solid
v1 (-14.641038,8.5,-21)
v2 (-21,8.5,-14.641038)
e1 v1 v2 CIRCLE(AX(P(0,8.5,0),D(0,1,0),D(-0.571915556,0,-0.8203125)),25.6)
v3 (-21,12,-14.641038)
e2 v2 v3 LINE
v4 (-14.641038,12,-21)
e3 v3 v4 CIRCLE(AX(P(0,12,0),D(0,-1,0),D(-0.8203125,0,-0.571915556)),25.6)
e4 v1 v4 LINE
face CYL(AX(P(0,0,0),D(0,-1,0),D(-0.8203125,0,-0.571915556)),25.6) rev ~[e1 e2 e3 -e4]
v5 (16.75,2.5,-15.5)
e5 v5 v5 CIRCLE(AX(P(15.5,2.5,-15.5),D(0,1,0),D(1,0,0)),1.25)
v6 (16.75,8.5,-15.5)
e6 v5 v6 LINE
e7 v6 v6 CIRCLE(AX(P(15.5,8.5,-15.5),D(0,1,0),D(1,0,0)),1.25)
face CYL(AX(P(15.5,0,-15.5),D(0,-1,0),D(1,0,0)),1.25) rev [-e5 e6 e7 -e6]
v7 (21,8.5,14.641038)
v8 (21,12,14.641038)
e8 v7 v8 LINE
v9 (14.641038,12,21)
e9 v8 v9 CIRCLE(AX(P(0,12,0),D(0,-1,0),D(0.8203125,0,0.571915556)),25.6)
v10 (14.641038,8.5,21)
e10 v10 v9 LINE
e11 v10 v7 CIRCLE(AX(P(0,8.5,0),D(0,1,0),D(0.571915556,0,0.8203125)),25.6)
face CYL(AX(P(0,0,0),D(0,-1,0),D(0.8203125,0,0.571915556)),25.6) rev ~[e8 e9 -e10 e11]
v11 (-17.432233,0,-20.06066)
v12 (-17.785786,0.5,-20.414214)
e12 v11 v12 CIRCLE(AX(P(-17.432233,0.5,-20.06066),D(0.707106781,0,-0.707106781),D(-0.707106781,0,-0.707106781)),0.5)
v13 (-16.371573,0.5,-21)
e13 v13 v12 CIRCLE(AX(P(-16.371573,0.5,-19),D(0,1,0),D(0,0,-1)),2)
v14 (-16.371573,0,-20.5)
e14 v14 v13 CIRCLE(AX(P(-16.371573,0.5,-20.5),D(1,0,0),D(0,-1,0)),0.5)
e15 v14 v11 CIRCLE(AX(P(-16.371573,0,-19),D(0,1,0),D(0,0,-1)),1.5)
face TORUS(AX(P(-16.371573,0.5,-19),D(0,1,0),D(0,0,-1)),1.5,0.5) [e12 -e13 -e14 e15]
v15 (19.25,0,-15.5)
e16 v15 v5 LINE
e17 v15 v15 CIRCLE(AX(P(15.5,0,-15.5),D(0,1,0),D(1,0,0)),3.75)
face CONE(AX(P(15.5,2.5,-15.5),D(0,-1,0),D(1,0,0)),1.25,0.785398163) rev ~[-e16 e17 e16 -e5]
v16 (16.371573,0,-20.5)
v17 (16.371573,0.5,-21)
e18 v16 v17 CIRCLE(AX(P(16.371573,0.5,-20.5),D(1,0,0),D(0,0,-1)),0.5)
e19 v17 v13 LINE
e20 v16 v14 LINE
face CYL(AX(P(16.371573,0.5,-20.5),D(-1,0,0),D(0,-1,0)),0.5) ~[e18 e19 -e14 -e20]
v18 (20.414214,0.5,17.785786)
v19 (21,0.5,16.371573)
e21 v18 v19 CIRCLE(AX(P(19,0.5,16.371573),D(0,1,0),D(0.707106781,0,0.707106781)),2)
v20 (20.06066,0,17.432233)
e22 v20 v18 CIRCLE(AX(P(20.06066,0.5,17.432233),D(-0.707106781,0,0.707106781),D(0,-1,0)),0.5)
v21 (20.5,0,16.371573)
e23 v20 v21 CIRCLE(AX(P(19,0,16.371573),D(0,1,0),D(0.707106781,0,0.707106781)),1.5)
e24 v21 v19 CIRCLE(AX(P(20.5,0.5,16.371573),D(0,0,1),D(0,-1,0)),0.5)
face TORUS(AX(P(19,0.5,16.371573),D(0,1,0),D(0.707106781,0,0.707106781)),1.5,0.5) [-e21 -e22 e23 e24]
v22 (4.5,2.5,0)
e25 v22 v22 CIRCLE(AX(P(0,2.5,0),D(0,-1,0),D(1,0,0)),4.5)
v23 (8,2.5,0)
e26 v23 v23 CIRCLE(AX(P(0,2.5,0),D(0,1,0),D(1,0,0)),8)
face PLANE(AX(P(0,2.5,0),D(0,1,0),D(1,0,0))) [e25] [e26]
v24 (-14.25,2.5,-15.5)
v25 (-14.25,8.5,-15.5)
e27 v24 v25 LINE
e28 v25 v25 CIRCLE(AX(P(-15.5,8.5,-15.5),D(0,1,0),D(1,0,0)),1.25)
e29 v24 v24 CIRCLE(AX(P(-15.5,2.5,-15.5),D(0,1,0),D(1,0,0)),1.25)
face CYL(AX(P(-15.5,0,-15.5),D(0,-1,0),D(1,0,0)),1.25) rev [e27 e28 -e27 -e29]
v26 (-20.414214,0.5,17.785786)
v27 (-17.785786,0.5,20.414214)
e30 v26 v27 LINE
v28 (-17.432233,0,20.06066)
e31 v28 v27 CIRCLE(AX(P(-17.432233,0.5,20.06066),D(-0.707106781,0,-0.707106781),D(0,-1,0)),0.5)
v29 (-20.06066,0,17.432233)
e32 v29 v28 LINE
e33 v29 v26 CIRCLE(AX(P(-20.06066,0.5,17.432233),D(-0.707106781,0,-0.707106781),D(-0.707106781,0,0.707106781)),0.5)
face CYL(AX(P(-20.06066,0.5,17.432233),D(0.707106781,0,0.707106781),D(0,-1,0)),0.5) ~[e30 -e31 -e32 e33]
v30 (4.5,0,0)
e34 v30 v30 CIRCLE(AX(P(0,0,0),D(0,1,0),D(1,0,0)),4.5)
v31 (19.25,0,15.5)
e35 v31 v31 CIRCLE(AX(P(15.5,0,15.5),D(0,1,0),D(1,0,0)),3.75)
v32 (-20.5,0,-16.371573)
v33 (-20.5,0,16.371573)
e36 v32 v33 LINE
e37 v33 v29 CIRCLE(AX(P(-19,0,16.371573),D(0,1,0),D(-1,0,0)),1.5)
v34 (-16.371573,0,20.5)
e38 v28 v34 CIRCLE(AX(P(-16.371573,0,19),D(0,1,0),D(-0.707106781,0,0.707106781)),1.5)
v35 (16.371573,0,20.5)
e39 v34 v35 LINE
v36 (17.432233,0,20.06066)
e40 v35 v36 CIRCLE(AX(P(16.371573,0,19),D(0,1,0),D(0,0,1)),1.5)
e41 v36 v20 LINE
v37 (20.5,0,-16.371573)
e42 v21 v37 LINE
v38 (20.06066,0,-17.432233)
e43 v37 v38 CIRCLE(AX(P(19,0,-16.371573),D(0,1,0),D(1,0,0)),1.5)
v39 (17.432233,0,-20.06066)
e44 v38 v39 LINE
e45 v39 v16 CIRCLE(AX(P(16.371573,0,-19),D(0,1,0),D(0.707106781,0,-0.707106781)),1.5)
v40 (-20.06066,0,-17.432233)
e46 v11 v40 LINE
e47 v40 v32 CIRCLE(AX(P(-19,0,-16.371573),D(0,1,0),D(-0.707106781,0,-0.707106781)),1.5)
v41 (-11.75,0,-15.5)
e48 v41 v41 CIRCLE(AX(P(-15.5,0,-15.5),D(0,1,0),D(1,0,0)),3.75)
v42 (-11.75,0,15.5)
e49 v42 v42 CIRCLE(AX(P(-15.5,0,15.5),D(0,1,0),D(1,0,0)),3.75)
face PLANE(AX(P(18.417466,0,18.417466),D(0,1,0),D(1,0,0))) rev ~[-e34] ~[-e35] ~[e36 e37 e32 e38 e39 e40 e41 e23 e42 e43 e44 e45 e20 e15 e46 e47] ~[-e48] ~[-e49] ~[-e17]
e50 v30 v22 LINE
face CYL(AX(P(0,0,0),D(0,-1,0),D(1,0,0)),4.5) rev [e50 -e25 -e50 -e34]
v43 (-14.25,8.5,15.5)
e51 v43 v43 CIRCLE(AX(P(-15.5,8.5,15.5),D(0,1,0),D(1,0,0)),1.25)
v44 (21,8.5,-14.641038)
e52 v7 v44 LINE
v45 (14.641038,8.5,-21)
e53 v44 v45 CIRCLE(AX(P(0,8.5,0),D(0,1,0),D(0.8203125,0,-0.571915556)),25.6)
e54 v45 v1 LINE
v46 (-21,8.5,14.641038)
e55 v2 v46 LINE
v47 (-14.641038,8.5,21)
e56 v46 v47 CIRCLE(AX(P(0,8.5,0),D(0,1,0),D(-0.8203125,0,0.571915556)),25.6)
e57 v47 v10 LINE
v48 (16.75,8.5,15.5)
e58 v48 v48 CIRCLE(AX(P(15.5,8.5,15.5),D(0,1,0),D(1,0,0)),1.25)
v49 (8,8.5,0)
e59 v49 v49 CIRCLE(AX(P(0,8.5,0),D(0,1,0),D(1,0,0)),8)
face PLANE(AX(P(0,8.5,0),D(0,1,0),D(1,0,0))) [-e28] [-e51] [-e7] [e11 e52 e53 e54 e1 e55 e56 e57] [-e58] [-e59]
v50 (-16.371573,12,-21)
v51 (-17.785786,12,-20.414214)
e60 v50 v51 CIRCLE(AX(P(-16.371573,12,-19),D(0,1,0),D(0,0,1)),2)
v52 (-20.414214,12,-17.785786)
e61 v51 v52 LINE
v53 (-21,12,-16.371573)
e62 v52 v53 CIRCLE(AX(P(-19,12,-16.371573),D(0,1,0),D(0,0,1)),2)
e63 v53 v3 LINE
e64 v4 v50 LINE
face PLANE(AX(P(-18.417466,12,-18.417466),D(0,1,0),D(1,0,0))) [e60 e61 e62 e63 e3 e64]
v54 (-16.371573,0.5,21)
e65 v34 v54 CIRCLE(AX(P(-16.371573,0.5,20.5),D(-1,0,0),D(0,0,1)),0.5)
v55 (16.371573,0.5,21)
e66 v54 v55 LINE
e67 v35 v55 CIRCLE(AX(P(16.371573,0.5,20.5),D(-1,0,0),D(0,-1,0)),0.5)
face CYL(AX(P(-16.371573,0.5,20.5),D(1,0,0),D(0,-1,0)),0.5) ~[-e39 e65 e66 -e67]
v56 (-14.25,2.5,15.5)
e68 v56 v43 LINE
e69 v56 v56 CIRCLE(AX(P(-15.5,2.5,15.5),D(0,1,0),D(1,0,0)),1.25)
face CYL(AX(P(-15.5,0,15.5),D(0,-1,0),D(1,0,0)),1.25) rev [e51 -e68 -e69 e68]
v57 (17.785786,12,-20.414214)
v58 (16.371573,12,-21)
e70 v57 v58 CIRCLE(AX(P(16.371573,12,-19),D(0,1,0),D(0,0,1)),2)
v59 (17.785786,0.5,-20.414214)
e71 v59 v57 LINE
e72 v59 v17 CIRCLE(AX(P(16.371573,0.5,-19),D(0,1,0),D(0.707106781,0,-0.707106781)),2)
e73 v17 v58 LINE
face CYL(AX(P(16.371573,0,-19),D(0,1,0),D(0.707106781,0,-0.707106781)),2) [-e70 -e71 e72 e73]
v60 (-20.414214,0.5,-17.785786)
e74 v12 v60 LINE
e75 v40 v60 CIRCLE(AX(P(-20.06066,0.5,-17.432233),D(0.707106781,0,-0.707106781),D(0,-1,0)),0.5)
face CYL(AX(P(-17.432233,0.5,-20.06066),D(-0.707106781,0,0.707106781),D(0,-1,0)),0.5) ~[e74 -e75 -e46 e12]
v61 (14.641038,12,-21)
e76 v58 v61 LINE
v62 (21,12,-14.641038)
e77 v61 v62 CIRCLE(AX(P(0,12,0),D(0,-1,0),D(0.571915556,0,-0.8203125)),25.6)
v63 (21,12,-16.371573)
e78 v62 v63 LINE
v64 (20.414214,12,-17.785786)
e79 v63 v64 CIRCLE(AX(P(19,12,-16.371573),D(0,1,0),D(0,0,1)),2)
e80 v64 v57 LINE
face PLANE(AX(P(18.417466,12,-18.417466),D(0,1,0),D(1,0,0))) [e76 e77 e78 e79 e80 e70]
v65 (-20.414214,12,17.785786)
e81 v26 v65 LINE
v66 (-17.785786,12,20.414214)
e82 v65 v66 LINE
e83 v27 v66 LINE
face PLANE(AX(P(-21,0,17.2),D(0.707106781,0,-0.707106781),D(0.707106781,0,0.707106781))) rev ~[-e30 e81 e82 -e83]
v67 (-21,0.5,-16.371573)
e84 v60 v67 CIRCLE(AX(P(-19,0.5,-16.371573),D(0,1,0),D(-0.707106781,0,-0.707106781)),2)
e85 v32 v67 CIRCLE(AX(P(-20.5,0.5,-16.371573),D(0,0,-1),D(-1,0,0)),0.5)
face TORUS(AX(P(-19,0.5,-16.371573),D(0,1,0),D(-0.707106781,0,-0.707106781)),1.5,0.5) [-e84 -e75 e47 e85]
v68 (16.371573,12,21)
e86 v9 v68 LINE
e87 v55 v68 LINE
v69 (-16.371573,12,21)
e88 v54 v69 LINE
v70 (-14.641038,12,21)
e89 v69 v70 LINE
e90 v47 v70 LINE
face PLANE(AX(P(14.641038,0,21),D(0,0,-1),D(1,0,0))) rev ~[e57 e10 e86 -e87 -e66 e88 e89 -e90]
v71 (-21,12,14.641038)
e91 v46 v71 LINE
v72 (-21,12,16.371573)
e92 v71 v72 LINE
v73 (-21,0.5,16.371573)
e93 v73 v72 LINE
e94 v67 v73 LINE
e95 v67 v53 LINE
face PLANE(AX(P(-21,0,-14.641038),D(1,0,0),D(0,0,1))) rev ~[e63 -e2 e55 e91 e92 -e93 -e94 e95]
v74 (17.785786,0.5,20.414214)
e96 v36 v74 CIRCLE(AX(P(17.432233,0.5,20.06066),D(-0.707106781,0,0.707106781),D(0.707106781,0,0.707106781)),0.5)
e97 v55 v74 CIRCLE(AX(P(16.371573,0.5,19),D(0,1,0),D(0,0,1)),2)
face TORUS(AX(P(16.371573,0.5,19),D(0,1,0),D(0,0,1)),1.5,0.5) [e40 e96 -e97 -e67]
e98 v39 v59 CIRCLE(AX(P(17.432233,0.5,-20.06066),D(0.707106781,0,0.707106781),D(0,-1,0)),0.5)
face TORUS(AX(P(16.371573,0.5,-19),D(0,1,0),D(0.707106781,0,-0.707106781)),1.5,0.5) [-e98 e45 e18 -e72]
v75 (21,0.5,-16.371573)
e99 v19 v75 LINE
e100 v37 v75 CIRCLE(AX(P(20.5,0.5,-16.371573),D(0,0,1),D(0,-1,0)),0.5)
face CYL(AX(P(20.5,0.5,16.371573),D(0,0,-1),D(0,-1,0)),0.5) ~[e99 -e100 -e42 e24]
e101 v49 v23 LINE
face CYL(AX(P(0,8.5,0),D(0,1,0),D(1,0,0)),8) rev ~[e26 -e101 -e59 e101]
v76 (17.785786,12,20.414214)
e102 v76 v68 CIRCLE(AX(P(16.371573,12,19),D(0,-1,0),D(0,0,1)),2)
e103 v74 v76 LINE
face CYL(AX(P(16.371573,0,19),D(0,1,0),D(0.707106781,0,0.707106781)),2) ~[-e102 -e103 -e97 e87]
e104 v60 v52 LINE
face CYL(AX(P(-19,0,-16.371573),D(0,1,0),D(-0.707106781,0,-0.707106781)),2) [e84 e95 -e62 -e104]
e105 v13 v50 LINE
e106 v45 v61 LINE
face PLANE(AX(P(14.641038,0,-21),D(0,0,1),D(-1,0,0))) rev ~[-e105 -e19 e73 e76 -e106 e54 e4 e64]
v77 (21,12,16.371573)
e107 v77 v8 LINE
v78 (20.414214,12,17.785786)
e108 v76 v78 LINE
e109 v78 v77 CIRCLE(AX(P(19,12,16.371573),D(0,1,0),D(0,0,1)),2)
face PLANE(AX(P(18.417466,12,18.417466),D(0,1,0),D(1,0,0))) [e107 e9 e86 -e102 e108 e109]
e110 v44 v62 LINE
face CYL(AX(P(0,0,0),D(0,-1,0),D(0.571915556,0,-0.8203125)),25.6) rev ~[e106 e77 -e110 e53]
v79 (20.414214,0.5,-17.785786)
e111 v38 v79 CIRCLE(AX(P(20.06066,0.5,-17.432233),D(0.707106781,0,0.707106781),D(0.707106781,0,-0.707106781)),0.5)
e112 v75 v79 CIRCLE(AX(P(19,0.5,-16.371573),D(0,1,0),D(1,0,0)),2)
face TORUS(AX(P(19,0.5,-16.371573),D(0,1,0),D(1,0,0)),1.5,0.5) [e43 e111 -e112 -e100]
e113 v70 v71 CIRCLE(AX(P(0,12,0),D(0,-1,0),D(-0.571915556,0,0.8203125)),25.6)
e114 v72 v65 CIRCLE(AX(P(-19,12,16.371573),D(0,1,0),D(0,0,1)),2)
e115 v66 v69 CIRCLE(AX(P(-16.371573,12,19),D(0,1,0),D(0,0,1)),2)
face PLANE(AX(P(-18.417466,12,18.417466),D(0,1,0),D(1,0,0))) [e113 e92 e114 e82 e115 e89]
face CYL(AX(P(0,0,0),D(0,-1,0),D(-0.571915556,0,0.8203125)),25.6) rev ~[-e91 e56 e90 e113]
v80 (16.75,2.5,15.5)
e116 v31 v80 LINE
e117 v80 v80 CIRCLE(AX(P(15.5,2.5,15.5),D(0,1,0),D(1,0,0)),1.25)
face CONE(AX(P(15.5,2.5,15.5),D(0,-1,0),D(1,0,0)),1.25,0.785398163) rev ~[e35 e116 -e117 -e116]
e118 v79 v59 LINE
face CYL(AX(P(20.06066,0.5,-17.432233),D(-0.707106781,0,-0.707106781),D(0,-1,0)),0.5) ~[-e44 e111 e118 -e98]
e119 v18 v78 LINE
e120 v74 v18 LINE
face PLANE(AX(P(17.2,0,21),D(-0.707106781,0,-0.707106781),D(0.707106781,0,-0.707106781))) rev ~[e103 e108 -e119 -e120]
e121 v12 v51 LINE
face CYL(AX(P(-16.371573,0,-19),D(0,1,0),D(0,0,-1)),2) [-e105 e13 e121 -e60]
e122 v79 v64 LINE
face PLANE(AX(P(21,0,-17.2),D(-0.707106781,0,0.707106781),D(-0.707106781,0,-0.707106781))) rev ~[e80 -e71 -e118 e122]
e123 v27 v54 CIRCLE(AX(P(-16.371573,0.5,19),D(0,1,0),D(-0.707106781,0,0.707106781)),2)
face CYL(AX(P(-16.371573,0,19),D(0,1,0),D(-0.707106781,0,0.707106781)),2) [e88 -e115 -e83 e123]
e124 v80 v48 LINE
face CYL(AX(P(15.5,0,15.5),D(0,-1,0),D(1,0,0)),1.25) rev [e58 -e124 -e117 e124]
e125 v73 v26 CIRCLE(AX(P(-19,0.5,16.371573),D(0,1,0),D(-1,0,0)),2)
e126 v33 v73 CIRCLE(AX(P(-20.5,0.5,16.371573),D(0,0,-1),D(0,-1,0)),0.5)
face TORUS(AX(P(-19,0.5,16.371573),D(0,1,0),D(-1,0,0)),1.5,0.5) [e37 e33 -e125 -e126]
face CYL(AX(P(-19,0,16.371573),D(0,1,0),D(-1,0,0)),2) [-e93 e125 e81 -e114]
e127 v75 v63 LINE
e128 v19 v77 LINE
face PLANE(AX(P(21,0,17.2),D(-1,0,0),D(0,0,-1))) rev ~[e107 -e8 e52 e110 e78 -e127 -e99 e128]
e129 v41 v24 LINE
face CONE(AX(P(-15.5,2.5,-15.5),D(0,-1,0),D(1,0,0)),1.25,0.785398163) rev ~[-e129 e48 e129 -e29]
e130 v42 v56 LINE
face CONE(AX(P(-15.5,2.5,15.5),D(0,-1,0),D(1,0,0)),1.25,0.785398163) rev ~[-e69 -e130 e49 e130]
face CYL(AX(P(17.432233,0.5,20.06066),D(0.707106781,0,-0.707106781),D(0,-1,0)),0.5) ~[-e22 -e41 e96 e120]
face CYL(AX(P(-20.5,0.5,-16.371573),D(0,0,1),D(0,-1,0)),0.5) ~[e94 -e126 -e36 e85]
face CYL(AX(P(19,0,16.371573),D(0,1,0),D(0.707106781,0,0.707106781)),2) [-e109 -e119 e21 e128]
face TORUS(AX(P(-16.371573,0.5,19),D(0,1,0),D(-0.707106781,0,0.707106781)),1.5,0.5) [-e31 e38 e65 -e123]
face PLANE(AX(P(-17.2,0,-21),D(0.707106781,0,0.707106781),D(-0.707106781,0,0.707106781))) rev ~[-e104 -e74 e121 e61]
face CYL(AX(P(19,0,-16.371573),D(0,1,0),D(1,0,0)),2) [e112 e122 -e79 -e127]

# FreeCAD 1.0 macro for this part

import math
import FreeCAD as App
import Part
import Sketcher
Q = App.Units.Quantity


def edges_at(feature, points):
    """Names of the edges that pass closest to the given points."""
    edges = feature.Shape.Edges
    near = lambda p: min(range(len(edges)), key=lambda i: edges[i].distToShape(Part.Vertex(*p))[0])
    return sorted({f"Edge{near(p) + 1}" for p in points})

doc = App.newDocument("Part")
body = doc.addObject("PartDesign::Body", "Body")

# Sketch on XZ plane
sketch1 = body.newObject("Sketcher::SketchObject", "Sketch")
sketch1.AttachmentSupport = (doc.getObject("XZ_Plane"), [""])
sketch1.MapMode = "FlatFace"
sketch1.addGeometry([
    Part.ArcOfCircle(Part.Circle(App.Vector(0, 0, 0), App.Vector(0, 0, 1), 25.6), math.radians(-145), math.radians(-125)),  # 0
    Part.LineSegment(App.Vector(-21, -14.6, 0), App.Vector(-21, 14.6, 0)),  # 1
    Part.ArcOfCircle(Part.Circle(App.Vector(0, 0, 0), App.Vector(0, 0, 1), 25.6), math.radians(125), math.radians(145)),  # 2
    Part.LineSegment(App.Vector(-14.6, 21, 0), App.Vector(14.6, 21, 0)),  # 3
    Part.ArcOfCircle(Part.Circle(App.Vector(0, 0, 0), App.Vector(0, 0, 1), 25.6), math.radians(35), math.radians(55)),  # 4
    Part.LineSegment(App.Vector(21, 14.6, 0), App.Vector(21, -14.6, 0)),  # 5
    Part.ArcOfCircle(Part.Circle(App.Vector(0, 0, 0), App.Vector(0, 0, 1), 25.6), math.radians(-55), math.radians(-35)),  # 6
    Part.LineSegment(App.Vector(14.6, -21, 0), App.Vector(-14.6, -21, 0)),  # 7
    Part.Circle(App.Vector(-15.5, 15.5, 0), App.Vector(0, 0, 1), 1.2),  # 8
    Part.Circle(App.Vector(15.5, 15.5, 0), App.Vector(0, 0, 1), 1.2),  # 9
    Part.Circle(App.Vector(-15.5, -15.5, 0), App.Vector(0, 0, 1), 1.2),  # 10
    Part.Circle(App.Vector(0, 0, 0), App.Vector(0, 0, 1), 4.5),  # 11
    Part.Circle(App.Vector(15.5, -15.5, 0), App.Vector(0, 0, 1), 1.2),  # 12
], False)
sketch1.addConstraint([
    Sketcher.Constraint("Coincident", 0, 1, 1, 1),
    Sketcher.Constraint("Coincident", 1, 2, 2, 2),
    Sketcher.Constraint("Coincident", 2, 1, 3, 1),
    Sketcher.Constraint("Coincident", 3, 2, 4, 2),
    Sketcher.Constraint("Coincident", 4, 1, 5, 1),
    Sketcher.Constraint("Coincident", 5, 2, 6, 2),
    Sketcher.Constraint("Coincident", 6, 1, 7, 1),
    Sketcher.Constraint("Coincident", 7, 2, 0, 2),
    Sketcher.Constraint("Vertical", 1),
    Sketcher.Constraint("Horizontal", 3),
    Sketcher.Constraint("Vertical", 5),
    Sketcher.Constraint("Horizontal", 7),
    Sketcher.Constraint("Coincident", 0, 3, -1, 1),
    Sketcher.Constraint("Coincident", 2, 3, -1, 1),
    Sketcher.Constraint("Coincident", 4, 3, -1, 1),
    Sketcher.Constraint("Coincident", 6, 3, -1, 1),
    Sketcher.Constraint("Coincident", 11, 3, -1, 1),
    Sketcher.Constraint("Equal", 0, 2),
    Sketcher.Constraint("Equal", 2, 4),
    Sketcher.Constraint("Equal", 4, 6),
    Sketcher.Constraint("Equal", 8, 9),
    Sketcher.Constraint("Equal", 9, 10),
    Sketcher.Constraint("Equal", 10, 12),
    Sketcher.Constraint("Symmetric", 9, 3, 10, 3, -1, 1),
    Sketcher.Constraint("Symmetric", 8, 3, 12, 3, -1, 1),
    Sketcher.Constraint("Symmetric", 8, 3, 9, 3, -2),
    Sketcher.Constraint("Horizontal", 1, 2, 4, 1),
    Sketcher.Constraint("Vertical", 3, 2, 6, 1),
    Sketcher.Constraint("Equal", 7, 1),
    Sketcher.Constraint("Diameter", 11, Q("9 mm")),
    Sketcher.Constraint("Diameter", 8, Q("2.5 mm")),
    Sketcher.Constraint("Radius", 0, Q("25.6 mm")),
    Sketcher.Constraint("DistanceX", 0, 1, -1, 1, Q("21 mm")),
    Sketcher.Constraint("DistanceX", 8, 3, 9, 3, Q("31 mm")),
    Sketcher.Constraint("DistanceY", 10, 3, 8, 3, Q("31 mm")),
])
pad1 = body.newObject("PartDesign::Pad", "Pad")
pad1.Profile = sketch1
pad1.Length = 8.5
pad1.Reversed = True

# Sketch on XZ plane
sketch2 = body.newObject("Sketcher::SketchObject", "Sketch001")
sketch2.AttachmentSupport = (doc.getObject("XZ_Plane"), [""])
sketch2.MapMode = "FlatFace"
sketch2.addGeometry([
    Part.ArcOfCircle(Part.Circle(App.Vector(0, 0, 0), App.Vector(0, 0, 1), 25.6), math.radians(35), math.radians(55)),  # 0
    Part.LineSegment(App.Vector(14.6, 21, 0), App.Vector(17.2, 21, 0)),  # 1
    Part.LineSegment(App.Vector(17.2, 21, 0), App.Vector(21, 17.2, 0)),  # 2
    Part.LineSegment(App.Vector(21, 17.2, 0), App.Vector(21, 14.6, 0)),  # 3
    Part.ArcOfCircle(Part.Circle(App.Vector(0, 0, 0), App.Vector(0, 0, 1), 25.6), math.radians(125), math.radians(145)),  # 4
    Part.LineSegment(App.Vector(-21, 14.6, 0), App.Vector(-21, 17.2, 0)),  # 5
    Part.LineSegment(App.Vector(-21, 17.2, 0), App.Vector(-17.2, 21, 0)),  # 6
    Part.LineSegment(App.Vector(-17.2, 21, 0), App.Vector(-14.6, 21, 0)),  # 7
    Part.LineSegment(App.Vector(-17.2, -21, 0), App.Vector(-21, -17.2, 0)),  # 8
    Part.LineSegment(App.Vector(-21, -17.2, 0), App.Vector(-21, -14.6, 0)),  # 9
    Part.ArcOfCircle(Part.Circle(App.Vector(0, 0, 0), App.Vector(0, 0, 1), 25.6), math.radians(-145), math.radians(-125)),  # 10
    Part.LineSegment(App.Vector(-14.6, -21, 0), App.Vector(-17.2, -21, 0)),  # 11
    Part.LineSegment(App.Vector(17.2, -21, 0), App.Vector(14.6, -21, 0)),  # 12
    Part.ArcOfCircle(Part.Circle(App.Vector(0, 0, 0), App.Vector(0, 0, 1), 25.6), math.radians(-55), math.radians(-35)),  # 13
    Part.LineSegment(App.Vector(21, -14.6, 0), App.Vector(21, -17.2, 0)),  # 14
    Part.LineSegment(App.Vector(21, -17.2, 0), App.Vector(17.2, -21, 0)),  # 15
], False)
sketch2.addConstraint([
    Sketcher.Constraint("Coincident", 0, 2, 1, 1),
    Sketcher.Constraint("Coincident", 1, 2, 2, 1),
    Sketcher.Constraint("Coincident", 2, 2, 3, 1),
    Sketcher.Constraint("Coincident", 3, 2, 0, 1),
    Sketcher.Constraint("Coincident", 4, 2, 5, 1),
    Sketcher.Constraint("Coincident", 5, 2, 6, 1),
    Sketcher.Constraint("Coincident", 6, 2, 7, 1),
    Sketcher.Constraint("Coincident", 7, 2, 4, 1),
    Sketcher.Constraint("Coincident", 8, 2, 9, 1),
    Sketcher.Constraint("Coincident", 9, 2, 10, 1),
    Sketcher.Constraint("Coincident", 10, 2, 11, 1),
    Sketcher.Constraint("Coincident", 11, 2, 8, 1),
    Sketcher.Constraint("Coincident", 12, 2, 13, 1),
    Sketcher.Constraint("Coincident", 13, 2, 14, 1),
    Sketcher.Constraint("Coincident", 14, 2, 15, 1),
    Sketcher.Constraint("Coincident", 15, 2, 12, 1),
    Sketcher.Constraint("Horizontal", 1),
    Sketcher.Constraint("Vertical", 3),
    Sketcher.Constraint("Vertical", 5),
    Sketcher.Constraint("Horizontal", 7),
    Sketcher.Constraint("Vertical", 9),
    Sketcher.Constraint("Horizontal", 11),
    Sketcher.Constraint("Horizontal", 12),
    Sketcher.Constraint("Vertical", 14),
    Sketcher.Constraint("Coincident", 0, 3, -1, 1),
    Sketcher.Constraint("Coincident", 4, 3, -1, 1),
    Sketcher.Constraint("Coincident", 10, 3, -1, 1),
    Sketcher.Constraint("Coincident", 13, 3, -1, 1),
    Sketcher.Constraint("Equal", 0, 4),
    Sketcher.Constraint("Equal", 4, 10),
    Sketcher.Constraint("Equal", 10, 13),
    Sketcher.Constraint("Symmetric", 2, 2, 8, 2, -1, 1),
    Sketcher.Constraint("Symmetric", 1, 2, 11, 2, -1, 1),
    Sketcher.Constraint("Symmetric", 5, 2, 14, 2, -1, 1),
    Sketcher.Constraint("Symmetric", 6, 2, 15, 2, -1, 1),
    Sketcher.Constraint("Symmetric", 2, 2, 5, 2, -2),
    Sketcher.Constraint("Symmetric", 1, 2, 6, 2, -2),
    Sketcher.Constraint("Perpendicular", 2, 6),
    Sketcher.Constraint("Equal", 12, 3),
    Sketcher.Constraint("Radius", 0, Q("25.6 mm")),
    Sketcher.Constraint("DistanceY", -1, 1, 0, 2, Q("21 mm")),
    Sketcher.Constraint("DistanceX", -1, 1, 1, 2, Q("17.2 mm")),
])
pad2 = body.newObject("PartDesign::Pad", "Pad001")
pad2.Profile = sketch2
pad2.Length = 12
pad2.Reversed = True
doc.recompute()

chamfer = body.newObject("PartDesign::Chamfer", "Chamfer")
chamfer.Base = (pad2, edges_at(pad2, [
    (-16.75, 0, 15.5),
    (14.25, 0, 15.5),
    (14.25, 0, -15.5),
    (-16.75, 0, -15.5),
]))
chamfer.Size = 2.5

# Sketch on XZ plane
sketch3 = body.newObject("Sketcher::SketchObject", "Sketch002")
sketch3.AttachmentSupport = (doc.getObject("XZ_Plane"), [""])
sketch3.MapMode = "FlatFace"
sketch3.AttachmentOffset = App.Placement(App.Vector(0, 0, -8.5), App.Rotation())
sketch3.addGeometry(Part.Circle(App.Vector(0, 0, 0), App.Vector(0, 0, 1), 8), False)
sketch3.addConstraint([
    Sketcher.Constraint("Coincident", 0, 3, -1, 1),
    Sketcher.Constraint("Diameter", 0, Q("16 mm")),
])
pocket1 = body.newObject("PartDesign::Pocket", "Pocket")
pocket1.Profile = sketch3
pocket1.Length = 6
pocket1.Reversed = True
doc.recompute()

fillet = body.newObject("PartDesign::Fillet", "Fillet")
fillet.Base = (pocket1, edges_at(pocket1, [
    (17.2, 6, 21),
    (21, 6, 17.2),
    (-21, 6, 17.2),
    (-17.2, 6, 21),
    (-17.2, 6, -21),
    (-21, 6, -17.2),
    (21, 6, -17.2),
    (17.2, 6, -21),
]))
fillet.Radius = 2
doc.recompute()

fillet2 = body.newObject("PartDesign::Fillet", "Fillet001")
fillet2.Base = (fillet, edges_at(fillet, [
    (21, 0, 0),
    (0, 0, 21),
    (-19.1, 0, 19.1),
    (-21, 0, 0),
    (-19.1, 0, -19.1),
    (0, 0, -21),
    (19.1, 0, -19.1),
    (19.1, 0, 19.1),
    (20.848, 0, -17.137),
    (17.137, 0, -20.848),
    (-17.137, 0, -20.848),
    (-20.848, 0, -17.137),
    (-20.848, 0, 17.137),
    (-17.137, 0, 20.848),
    (17.137, 0, 20.848),
    (20.848, 0, 17.137),
]))
fillet2.Radius = 0.5

doc.recompute()
